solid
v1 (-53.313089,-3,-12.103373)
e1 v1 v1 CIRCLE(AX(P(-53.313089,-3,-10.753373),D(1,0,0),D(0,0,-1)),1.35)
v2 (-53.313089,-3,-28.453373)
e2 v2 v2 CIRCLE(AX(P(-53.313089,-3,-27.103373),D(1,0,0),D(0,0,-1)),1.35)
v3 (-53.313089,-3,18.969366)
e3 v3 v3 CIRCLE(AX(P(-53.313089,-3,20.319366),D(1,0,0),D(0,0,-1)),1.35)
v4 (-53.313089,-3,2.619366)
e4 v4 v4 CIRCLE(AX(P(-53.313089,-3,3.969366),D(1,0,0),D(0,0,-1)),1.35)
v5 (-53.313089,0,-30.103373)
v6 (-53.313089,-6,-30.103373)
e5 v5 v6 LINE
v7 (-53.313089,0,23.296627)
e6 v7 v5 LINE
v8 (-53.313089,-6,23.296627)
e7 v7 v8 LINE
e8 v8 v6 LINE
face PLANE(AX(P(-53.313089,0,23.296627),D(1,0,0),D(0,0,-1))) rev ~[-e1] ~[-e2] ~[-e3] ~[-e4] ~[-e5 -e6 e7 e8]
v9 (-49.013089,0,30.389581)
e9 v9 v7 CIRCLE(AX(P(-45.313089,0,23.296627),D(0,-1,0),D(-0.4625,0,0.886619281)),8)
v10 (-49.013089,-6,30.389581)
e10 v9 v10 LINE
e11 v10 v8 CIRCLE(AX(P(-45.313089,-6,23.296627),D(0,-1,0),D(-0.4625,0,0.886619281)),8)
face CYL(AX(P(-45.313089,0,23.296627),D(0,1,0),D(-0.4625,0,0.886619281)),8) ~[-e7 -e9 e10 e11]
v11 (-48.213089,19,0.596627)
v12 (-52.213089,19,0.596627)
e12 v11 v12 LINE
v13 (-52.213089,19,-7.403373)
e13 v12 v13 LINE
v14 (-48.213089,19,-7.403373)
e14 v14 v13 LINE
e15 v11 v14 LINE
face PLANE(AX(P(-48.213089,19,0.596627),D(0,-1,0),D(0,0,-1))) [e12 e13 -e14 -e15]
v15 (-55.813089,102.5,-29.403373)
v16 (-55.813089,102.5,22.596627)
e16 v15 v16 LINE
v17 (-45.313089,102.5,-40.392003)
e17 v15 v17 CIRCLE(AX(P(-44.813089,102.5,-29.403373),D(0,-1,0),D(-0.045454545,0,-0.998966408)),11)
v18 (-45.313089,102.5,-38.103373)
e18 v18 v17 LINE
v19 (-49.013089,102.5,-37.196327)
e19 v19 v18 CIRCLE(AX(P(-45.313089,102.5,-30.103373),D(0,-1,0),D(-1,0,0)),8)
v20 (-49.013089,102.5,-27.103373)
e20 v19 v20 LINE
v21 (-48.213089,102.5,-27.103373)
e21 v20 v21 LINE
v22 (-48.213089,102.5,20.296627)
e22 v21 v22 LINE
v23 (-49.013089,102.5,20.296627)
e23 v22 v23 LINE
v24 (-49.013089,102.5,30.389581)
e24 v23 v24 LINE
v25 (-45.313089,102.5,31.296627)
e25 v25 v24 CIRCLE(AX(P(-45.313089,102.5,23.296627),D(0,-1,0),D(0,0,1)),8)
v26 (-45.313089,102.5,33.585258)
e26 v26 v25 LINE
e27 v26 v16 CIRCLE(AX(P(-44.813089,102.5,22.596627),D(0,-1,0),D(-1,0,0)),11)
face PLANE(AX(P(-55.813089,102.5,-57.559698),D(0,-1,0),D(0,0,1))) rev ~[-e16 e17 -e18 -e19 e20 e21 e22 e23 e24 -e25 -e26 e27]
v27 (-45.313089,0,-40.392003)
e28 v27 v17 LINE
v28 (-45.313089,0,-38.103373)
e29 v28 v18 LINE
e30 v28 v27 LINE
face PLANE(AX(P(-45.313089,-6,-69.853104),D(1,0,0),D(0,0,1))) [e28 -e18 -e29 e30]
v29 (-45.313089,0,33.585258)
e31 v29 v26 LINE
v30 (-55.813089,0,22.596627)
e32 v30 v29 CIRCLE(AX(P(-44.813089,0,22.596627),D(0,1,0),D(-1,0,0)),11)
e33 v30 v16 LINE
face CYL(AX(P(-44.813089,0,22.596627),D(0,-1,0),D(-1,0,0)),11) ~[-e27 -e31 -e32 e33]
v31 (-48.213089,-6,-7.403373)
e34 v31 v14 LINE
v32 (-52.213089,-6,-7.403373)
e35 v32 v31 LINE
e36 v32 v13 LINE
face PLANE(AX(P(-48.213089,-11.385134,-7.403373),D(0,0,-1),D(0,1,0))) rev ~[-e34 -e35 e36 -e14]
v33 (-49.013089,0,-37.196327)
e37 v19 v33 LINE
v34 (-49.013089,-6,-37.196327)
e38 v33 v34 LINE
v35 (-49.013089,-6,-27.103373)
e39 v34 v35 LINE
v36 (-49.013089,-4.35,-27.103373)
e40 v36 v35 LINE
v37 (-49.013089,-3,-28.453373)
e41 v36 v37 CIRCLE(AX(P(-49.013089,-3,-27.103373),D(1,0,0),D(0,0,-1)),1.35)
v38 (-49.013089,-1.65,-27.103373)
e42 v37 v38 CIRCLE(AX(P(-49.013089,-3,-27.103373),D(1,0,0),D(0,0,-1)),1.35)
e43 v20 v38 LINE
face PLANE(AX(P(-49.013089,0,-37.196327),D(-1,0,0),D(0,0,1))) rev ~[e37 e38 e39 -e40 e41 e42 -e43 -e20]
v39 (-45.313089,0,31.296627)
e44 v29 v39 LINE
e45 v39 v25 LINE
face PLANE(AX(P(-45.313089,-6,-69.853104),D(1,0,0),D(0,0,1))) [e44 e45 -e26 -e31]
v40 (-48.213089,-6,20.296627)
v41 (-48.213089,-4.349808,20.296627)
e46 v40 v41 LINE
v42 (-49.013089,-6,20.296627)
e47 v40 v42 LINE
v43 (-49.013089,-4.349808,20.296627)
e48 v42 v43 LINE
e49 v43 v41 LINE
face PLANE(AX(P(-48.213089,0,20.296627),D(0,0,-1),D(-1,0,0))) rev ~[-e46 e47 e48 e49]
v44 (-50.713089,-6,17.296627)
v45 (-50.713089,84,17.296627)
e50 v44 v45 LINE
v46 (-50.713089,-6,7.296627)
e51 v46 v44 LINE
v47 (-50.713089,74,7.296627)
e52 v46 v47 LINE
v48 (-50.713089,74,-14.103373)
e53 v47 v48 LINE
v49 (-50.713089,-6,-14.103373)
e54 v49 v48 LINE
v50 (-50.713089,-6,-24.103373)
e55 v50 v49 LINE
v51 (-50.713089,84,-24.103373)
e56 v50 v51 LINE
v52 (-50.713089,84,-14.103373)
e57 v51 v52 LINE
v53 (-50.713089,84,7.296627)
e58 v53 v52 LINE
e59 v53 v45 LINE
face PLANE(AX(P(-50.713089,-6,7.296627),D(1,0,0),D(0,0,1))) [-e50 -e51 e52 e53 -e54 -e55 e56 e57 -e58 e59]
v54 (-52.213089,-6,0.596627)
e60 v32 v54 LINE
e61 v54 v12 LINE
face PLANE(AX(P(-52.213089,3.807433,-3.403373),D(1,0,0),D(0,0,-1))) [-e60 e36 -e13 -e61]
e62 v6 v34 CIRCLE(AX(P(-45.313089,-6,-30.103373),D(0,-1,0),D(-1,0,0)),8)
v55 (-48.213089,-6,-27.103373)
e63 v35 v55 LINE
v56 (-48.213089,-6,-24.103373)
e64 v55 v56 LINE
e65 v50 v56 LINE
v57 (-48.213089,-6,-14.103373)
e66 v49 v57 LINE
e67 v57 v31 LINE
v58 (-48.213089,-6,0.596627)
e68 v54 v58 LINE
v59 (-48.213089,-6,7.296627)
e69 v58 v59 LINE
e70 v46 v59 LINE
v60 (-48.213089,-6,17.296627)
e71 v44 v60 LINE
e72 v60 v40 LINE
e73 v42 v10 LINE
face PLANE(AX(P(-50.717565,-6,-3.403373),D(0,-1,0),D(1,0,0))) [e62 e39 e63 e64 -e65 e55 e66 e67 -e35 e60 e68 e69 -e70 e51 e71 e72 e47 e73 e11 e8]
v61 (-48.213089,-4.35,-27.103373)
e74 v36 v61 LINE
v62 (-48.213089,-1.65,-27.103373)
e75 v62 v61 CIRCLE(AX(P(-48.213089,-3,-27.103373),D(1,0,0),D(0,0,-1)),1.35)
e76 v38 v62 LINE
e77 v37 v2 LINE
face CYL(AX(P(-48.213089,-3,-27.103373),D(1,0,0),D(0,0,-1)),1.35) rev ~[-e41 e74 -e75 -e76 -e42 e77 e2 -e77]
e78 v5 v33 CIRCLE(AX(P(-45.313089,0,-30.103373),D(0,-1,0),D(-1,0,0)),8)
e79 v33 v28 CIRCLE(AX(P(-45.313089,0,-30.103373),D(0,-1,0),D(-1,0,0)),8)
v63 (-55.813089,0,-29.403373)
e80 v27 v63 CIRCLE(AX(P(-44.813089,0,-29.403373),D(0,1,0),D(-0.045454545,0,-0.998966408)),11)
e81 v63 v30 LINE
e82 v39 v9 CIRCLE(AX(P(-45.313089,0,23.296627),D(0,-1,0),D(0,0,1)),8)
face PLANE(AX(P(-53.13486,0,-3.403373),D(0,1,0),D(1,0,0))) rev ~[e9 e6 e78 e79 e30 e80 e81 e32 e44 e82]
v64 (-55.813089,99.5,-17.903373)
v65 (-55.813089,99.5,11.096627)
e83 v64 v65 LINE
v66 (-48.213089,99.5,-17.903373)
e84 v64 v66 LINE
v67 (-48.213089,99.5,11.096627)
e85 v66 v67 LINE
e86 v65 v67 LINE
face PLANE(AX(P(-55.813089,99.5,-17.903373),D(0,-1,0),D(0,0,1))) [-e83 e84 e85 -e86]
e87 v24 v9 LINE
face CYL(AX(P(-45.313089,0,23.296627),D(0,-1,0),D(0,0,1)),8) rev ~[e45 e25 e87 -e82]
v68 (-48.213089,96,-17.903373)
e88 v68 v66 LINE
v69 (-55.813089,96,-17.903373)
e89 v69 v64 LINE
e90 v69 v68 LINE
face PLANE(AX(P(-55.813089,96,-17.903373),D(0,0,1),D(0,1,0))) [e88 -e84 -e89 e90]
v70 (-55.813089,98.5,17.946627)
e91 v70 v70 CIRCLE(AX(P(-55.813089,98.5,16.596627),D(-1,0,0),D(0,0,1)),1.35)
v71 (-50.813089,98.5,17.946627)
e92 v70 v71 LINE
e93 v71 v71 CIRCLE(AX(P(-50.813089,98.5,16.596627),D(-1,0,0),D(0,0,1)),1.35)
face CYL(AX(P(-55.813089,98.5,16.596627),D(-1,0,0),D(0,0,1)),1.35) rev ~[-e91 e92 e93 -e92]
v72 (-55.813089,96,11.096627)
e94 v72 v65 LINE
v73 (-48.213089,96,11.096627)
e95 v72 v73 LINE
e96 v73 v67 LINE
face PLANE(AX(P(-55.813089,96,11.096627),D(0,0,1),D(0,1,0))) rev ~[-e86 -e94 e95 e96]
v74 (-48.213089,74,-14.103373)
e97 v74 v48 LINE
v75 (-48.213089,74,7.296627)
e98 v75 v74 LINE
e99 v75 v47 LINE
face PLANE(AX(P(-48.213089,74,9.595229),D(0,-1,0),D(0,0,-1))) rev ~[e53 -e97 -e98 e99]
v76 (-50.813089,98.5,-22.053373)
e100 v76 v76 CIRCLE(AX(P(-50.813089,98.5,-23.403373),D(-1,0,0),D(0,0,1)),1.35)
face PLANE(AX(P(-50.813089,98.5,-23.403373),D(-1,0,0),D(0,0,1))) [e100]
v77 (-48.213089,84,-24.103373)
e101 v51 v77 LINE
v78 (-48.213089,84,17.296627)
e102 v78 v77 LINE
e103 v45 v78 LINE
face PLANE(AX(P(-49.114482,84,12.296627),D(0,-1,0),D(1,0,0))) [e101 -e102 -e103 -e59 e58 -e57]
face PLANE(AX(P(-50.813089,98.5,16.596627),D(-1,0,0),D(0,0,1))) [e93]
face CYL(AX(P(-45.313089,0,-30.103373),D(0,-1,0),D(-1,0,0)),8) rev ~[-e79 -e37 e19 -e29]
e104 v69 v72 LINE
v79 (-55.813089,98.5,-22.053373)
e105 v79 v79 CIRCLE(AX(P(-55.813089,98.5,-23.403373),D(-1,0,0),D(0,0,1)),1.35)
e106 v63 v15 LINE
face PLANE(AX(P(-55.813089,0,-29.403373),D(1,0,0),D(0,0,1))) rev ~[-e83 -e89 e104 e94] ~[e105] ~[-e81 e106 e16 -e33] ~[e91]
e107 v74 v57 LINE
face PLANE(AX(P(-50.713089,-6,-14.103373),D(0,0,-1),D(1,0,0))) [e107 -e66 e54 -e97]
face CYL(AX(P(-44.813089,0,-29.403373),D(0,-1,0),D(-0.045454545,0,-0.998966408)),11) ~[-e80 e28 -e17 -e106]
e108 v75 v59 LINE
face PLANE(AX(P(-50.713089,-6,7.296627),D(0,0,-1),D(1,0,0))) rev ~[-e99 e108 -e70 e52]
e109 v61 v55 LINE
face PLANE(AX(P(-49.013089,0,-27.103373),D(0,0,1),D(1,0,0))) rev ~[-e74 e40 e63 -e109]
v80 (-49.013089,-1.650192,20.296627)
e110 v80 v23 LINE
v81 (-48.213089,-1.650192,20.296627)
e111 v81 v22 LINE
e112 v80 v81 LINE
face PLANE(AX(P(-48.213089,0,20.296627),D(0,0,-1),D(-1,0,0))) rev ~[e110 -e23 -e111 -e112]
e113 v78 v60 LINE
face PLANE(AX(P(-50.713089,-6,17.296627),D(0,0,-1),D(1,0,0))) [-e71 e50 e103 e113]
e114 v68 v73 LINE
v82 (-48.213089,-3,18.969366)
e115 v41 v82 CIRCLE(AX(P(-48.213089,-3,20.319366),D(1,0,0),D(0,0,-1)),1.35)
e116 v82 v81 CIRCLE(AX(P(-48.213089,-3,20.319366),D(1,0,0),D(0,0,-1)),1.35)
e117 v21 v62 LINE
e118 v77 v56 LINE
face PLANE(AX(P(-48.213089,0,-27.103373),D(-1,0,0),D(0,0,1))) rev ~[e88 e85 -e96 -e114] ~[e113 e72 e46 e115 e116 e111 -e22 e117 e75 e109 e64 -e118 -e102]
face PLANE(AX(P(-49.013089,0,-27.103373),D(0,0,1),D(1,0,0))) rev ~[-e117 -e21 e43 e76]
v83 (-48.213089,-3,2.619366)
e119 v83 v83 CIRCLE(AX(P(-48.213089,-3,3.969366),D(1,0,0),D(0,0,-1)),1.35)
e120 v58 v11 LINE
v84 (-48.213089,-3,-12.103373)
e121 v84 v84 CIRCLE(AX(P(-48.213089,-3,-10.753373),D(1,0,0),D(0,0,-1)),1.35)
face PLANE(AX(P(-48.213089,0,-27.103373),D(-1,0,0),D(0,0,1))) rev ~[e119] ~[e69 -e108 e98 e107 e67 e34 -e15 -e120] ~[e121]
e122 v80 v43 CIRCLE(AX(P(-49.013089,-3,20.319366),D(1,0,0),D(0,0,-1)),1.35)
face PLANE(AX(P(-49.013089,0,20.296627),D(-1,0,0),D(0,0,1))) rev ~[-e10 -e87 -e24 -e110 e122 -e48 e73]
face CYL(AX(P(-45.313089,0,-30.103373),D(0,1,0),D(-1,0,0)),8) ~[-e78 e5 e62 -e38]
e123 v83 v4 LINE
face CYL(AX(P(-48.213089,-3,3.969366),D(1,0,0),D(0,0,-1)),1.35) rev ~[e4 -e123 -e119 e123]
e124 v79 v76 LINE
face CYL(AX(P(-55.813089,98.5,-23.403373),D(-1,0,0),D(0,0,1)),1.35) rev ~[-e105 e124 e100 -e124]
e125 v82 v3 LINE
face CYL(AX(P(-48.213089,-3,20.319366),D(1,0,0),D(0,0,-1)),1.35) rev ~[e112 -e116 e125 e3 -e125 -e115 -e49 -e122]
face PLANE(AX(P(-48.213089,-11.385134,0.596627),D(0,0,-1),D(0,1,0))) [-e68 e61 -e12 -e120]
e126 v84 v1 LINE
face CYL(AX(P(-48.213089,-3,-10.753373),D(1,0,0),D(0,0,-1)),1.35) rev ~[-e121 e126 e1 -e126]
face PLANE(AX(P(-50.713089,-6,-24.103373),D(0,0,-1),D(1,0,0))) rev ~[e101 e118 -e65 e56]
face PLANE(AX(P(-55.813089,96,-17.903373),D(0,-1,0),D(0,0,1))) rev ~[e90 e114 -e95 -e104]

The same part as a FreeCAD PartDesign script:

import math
import FreeCAD as App
import Part
import Sketcher
from FreeCAD import Vector
Q = App.Units.Quantity

doc = App.newDocument("Part")
body = doc.addObject("PartDesign::Body", "Body")

sketch1 = body.newObject("Sketcher::SketchObject", "Sketch")
sketch1.AttachmentSupport = (doc.getObject("XZ_Plane"), [""])
sketch1.MapMode = "FlatFace"
sketch1.addGeometry(Part.LineSegment(Vector(-55.813, -29.403, 0), Vector(-55.813, 22.597, 0)), False)
sketch1.addGeometry(Part.ArcOfCircle(Part.Circle(Vector(-44.813, 22.597, 0), Vector(0, 0, 1), 11), math.radians(93), math.radians(180)), False)
sketch1.addGeometry(Part.ArcOfCircle(Part.Circle(Vector(-44.813, 22.597, 0), Vector(0, 0, 1), 11), math.radians(90), math.radians(92.61)), False)
sketch1.addGeometry(Part.LineSegment(Vector(-44.813, 33.597, 0), Vector(7.187, 33.597, 0)), False)
sketch1.addGeometry(Part.ArcOfCircle(Part.Circle(Vector(7.187, 22.597, 0), Vector(0, 0, 1), 11), math.radians(0), math.radians(90)), False)
sketch1.addGeometry(Part.LineSegment(Vector(18.187, 22.597, 0), Vector(18.187, -29.403, 0)), False)
sketch1.addGeometry(Part.ArcOfCircle(Part.Circle(Vector(7.187, -29.403, 0), Vector(0, 0, 1), 11), math.radians(-90), math.radians(0)), False)
sketch1.addGeometry(Part.LineSegment(Vector(7.187, -40.403, 0), Vector(-45.313, -40.403, 0)), False)
sketch1.addGeometry(Part.LineSegment(Vector(-45.313, -40.403, 0), Vector(-45.313, -40.392, 0)), False)
sketch1.addGeometry(Part.ArcOfCircle(Part.Circle(Vector(-44.813, -29.403, 0), Vector(0, 0, 1), 11), math.radians(180), math.radians(267)), False)
sketch1.addGeometry(Part.ArcOfCircle(Part.Circle(Vector(-45.313, 23.297, 0), Vector(0, 0, 1), 8), math.radians(90), math.radians(180)), False)
sketch1.addGeometry(Part.LineSegment(Vector(-53.313, 23.297, 0), Vector(-53.313, -30.103, 0)), False)
sketch1.addGeometry(Part.ArcOfCircle(Part.Circle(Vector(-45.313, -30.103, 0), Vector(0, 0, 1), 8), math.radians(180), math.radians(270)), False)
sketch1.addGeometry(Part.LineSegment(Vector(-45.313, -38.103, 0), Vector(7.687, -38.103, 0)), False)
sketch1.addGeometry(Part.ArcOfCircle(Part.Circle(Vector(7.687, -30.103, 0), Vector(0, 0, 1), 8), math.radians(-90), math.radians(0)), False)
sketch1.addGeometry(Part.LineSegment(Vector(15.687, -30.103, 0), Vector(15.687, 23.297, 0)), False)
sketch1.addGeometry(Part.ArcOfCircle(Part.Circle(Vector(7.687, 23.297, 0), Vector(0, 0, 1), 8), math.radians(0), math.radians(90)), False)
sketch1.addGeometry(Part.LineSegment(Vector(7.687, 31.297, 0), Vector(-45.313, 31.297, 0)), False)
sketch1.addConstraint(Sketcher.Constraint("Tangent", 0, 2, 1, 2))
sketch1.addConstraint(Sketcher.Constraint("Tangent", 1, 1, 2, 2))
sketch1.addConstraint(Sketcher.Constraint("Tangent", 2, 1, 3, 1))
sketch1.addConstraint(Sketcher.Constraint("Tangent", 3, 2, 4, 2))
sketch1.addConstraint(Sketcher.Constraint("Tangent", 4, 1, 5, 1))
sketch1.addConstraint(Sketcher.Constraint("Tangent", 5, 2, 6, 2))
sketch1.addConstraint(Sketcher.Constraint("Tangent", 6, 1, 7, 1))
sketch1.addConstraint(Sketcher.Constraint("Coincident", 7, 2, 8, 1))
sketch1.addConstraint(Sketcher.Constraint("Coincident", 8, 2, 9, 2))
sketch1.addConstraint(Sketcher.Constraint("Tangent", 9, 1, 0, 1))
sketch1.addConstraint(Sketcher.Constraint("Tangent", 10, 2, 11, 1))
sketch1.addConstraint(Sketcher.Constraint("Tangent", 11, 2, 12, 1))
sketch1.addConstraint(Sketcher.Constraint("Tangent", 12, 2, 13, 1))
sketch1.addConstraint(Sketcher.Constraint("Tangent", 13, 2, 14, 1))
sketch1.addConstraint(Sketcher.Constraint("Tangent", 14, 2, 15, 1))
sketch1.addConstraint(Sketcher.Constraint("Tangent", 15, 2, 16, 1))
sketch1.addConstraint(Sketcher.Constraint("Tangent", 16, 2, 17, 1))
sketch1.addConstraint(Sketcher.Constraint("Tangent", 17, 2, 10, 1))
sketch1.addConstraint(Sketcher.Constraint("Vertical", 0))
sketch1.addConstraint(Sketcher.Constraint("Horizontal", 3))
sketch1.addConstraint(Sketcher.Constraint("Vertical", 5))
sketch1.addConstraint(Sketcher.Constraint("Horizontal", 7))
sketch1.addConstraint(Sketcher.Constraint("Vertical", 8))
sketch1.addConstraint(Sketcher.Constraint("Vertical", 11))
sketch1.addConstraint(Sketcher.Constraint("Horizontal", 13))
sketch1.addConstraint(Sketcher.Constraint("Vertical", 15))
sketch1.addConstraint(Sketcher.Constraint("Horizontal", 17))
sketch1.addConstraint(Sketcher.Constraint("Equal", 1, 4))
sketch1.addConstraint(Sketcher.Constraint("Equal", 4, 6))
sketch1.addConstraint(Sketcher.Constraint("Equal", 6, 9))
sketch1.addConstraint(Sketcher.Constraint("Equal", 10, 12))
sketch1.addConstraint(Sketcher.Constraint("Equal", 12, 14))
sketch1.addConstraint(Sketcher.Constraint("Equal", 14, 16))
sketch1.addConstraint(Sketcher.Constraint("Horizontal", 6, 3, 9, 3))
sketch1.addConstraint(Sketcher.Constraint("Vertical", 2, 3, 9, 3))
sketch1.addConstraint(Sketcher.Constraint("Vertical", 12, 3, 1, 1))
sketch1.addConstraint(Sketcher.Constraint("Vertical", 1, 1, 7, 2))
sketch1.addConstraint(Sketcher.Constraint("Equal", 3, 0))
sketch1.addConstraint(Sketcher.Constraint("Radius", 1, Q("11 mm")))
sketch1.addConstraint(Sketcher.Constraint("Radius", 10, Q("8 mm")))
sketch1.addConstraint(Sketcher.Constraint("DistanceX", 3, 1, 3, 2, Q("52 mm")))
sketch1.addConstraint(Sketcher.Constraint("DistanceX", 13, 1, 13, 2, Q("53 mm")))
sketch1.addConstraint(Sketcher.Constraint("DistanceX", 7, 2, 7, 1, Q("52.5 mm")))
sketch1.addConstraint(Sketcher.Constraint("DistanceY", 11, 2, 11, 1, Q("53.4 mm")))
sketch1.addConstraint(Sketcher.Constraint("DistanceY", 1, 3, 10, 3, Q("0.7 mm")))
sketch1.addConstraint(Sketcher.Constraint("DistanceX", 1, 3, -1, 1, Q("44.813089 mm")))
sketch1.addConstraint(Sketcher.Constraint("DistanceY", -1, 1, 1, 3, Q("22.596627 mm")))
pad1 = body.newObject("PartDesign::Pad", "Pad")
pad1.Profile = sketch1
pad1.Length = 120
pad1.Reversed = True

sketch2 = body.newObject("Sketcher::SketchObject", "Sketch001")
sketch2.AttachmentSupport = (doc.getObject("XZ_Plane"), [""])
sketch2.MapMode = "FlatFace"
sketch2.addGeometry(Part.LineSegment(Vector(-49, -37.6, 0), Vector(-49, 32, 0)), False)
sketch2.addGeometry(Part.LineSegment(Vector(-49, 32, 0), Vector(-52.1, 30.2, 0)), False)
sketch2.addGeometry(Part.LineSegment(Vector(-52.1, 30.2, 0), Vector(-53.7, 27.8, 0)), False)
sketch2.addGeometry(Part.LineSegment(Vector(-53.7, 27.8, 0), Vector(-55.1, 25.5, 0)), False)
sketch2.addGeometry(Part.LineSegment(Vector(-55.1, 25.5, 0), Vector(-55.1, -30, 0)), False)
sketch2.addGeometry(Part.LineSegment(Vector(-55.1, -30, 0), Vector(-53.3, -34.9, 0)), False)
sketch2.addGeometry(Part.LineSegment(Vector(-53.3, -34.9, 0), Vector(-49, -37.6, 0)), False)
sketch2.addGeometry(Part.LineSegment(Vector(11.4, 32, 0), Vector(11.4, -38.5, 0)), False)
sketch2.addGeometry(Part.LineSegment(Vector(11.4, -38.5, 0), Vector(13.3, -37.8, 0)), False)
sketch2.addGeometry(Part.LineSegment(Vector(13.3, -37.8, 0), Vector(16.7, -32.3, 0)), False)
sketch2.addGeometry(Part.LineSegment(Vector(16.7, -32.3, 0), Vector(16.6, -31.2, 0)), False)
sketch2.addGeometry(Part.LineSegment(Vector(16.6, -31.2, 0), Vector(16.6, 24.8, 0)), False)
sketch2.addGeometry(Part.LineSegment(Vector(16.6, 24.8, 0), Vector(15, 29, 0)), False)
sketch2.addGeometry(Part.LineSegment(Vector(15, 29, 0), Vector(11.4, 32, 0)), False)
sketch2.addConstraint(Sketcher.Constraint("Coincident", 0, 2, 1, 1))
sketch2.addConstraint(Sketcher.Constraint("Coincident", 1, 2, 2, 1))
sketch2.addConstraint(Sketcher.Constraint("Coincident", 2, 2, 3, 1))
sketch2.addConstraint(Sketcher.Constraint("Coincident", 3, 2, 4, 1))
sketch2.addConstraint(Sketcher.Constraint("Coincident", 4, 2, 5, 1))
sketch2.addConstraint(Sketcher.Constraint("Coincident", 5, 2, 6, 1))
sketch2.addConstraint(Sketcher.Constraint("Coincident", 6, 2, 0, 1))
sketch2.addConstraint(Sketcher.Constraint("Coincident", 7, 2, 8, 1))
sketch2.addConstraint(Sketcher.Constraint("Coincident", 8, 2, 9, 1))
sketch2.addConstraint(Sketcher.Constraint("Coincident", 9, 2, 10, 1))
sketch2.addConstraint(Sketcher.Constraint("Coincident", 10, 2, 11, 1))
sketch2.addConstraint(Sketcher.Constraint("Coincident", 11, 2, 12, 1))
sketch2.addConstraint(Sketcher.Constraint("Coincident", 12, 2, 13, 1))
sketch2.addConstraint(Sketcher.Constraint("Coincident", 13, 2, 7, 1))
sketch2.addConstraint(Sketcher.Constraint("Vertical", 0))
sketch2.addConstraint(Sketcher.Constraint("Vertical", 4))
sketch2.addConstraint(Sketcher.Constraint("Vertical", 7))
sketch2.addConstraint(Sketcher.Constraint("Vertical", 11))
sketch2.addConstraint(Sketcher.Constraint("Perpendicular", 3, 6))
sketch2.addConstraint(Sketcher.Constraint("Perpendicular", 5, 8))
sketch2.addConstraint(Sketcher.Constraint("Perpendicular", 6, 9))
sketch2.addConstraint(Sketcher.Constraint("Horizontal", 0, 2, 13, 2))
sketch2.addConstraint(Sketcher.Constraint("DistanceX", 6, 2, 7, 2, Q("60.4 mm")))
sketch2.addConstraint(Sketcher.Constraint("Distance", 10, Q("1.118801 mm")))
sketch2.addConstraint(Sketcher.Constraint("DistanceY", 0, 1, 0, 2, Q("69.595951 mm")))
sketch2.addConstraint(Sketcher.Constraint("DistanceY", 4, 2, 0, 2, Q("61.957301 mm")))
sketch2.addConstraint(Sketcher.Constraint("DistanceY", 5, 2, 4, 2, Q("4.929302 mm")))
sketch2.addConstraint(Sketcher.Constraint("DistanceY", 5, 2, 2, 2, Q("62.693198 mm")))
sketch2.addConstraint(Sketcher.Constraint("DistanceY", 5, 2, 10, 2, Q("3.7429 mm")))
sketch2.addConstraint(Sketcher.Constraint("DistanceY", 9, 2, 12, 2, Q("61.2742 mm")))
sketch2.addConstraint(Sketcher.Constraint("Distance", 3, Q("2.746111 mm")))
sketch2.addConstraint(Sketcher.Constraint("DistanceY", 4, 2, 4, 1, Q("55.436944 mm")))
sketch2.addConstraint(Sketcher.Constraint("DistanceY", 7, 2, 7, 1, Q("70.460526 mm")))
sketch2.addConstraint(Sketcher.Constraint("DistanceY", 11, 1, 11, 2, Q("55.960744 mm")))
sketch2.addConstraint(Sketcher.Constraint("DistanceX", 0, 2, -1, 1, Q("49.013089 mm")))
sketch2.addConstraint(Sketcher.Constraint("DistanceY", -1, 1, 2, 2, Q("27.779331 mm")))
sketch2.addConstraint(Sketcher.Constraint("DistanceY", 9, 2, -1, 1, Q("32.27697 mm")))
sketch2.addConstraint(Sketcher.Constraint("DistanceY", 1, 2, 0, 2, Q("1.74606 mm")))
sketch2.addConstraint(Sketcher.Constraint("DistanceX", 2, 2, 1, 2, Q("1.579649 mm")))
sketch2.addConstraint(Sketcher.Constraint("DistanceX", 4, 2, 5, 2, Q("1.774549 mm")))
sketch2.addConstraint(Sketcher.Constraint("DistanceY", 8, 2, 4, 2, Q("7.825408 mm")))
sketch2.addConstraint(Sketcher.Constraint("DistanceX", 12, 2, 11, 2, Q("1.529818 mm")))
pad2 = body.newObject("PartDesign::Pad", "Pad001")
pad2.Profile = sketch2
pad2.Length = 120
pad2.Reversed = True

sketch3 = body.newObject("Sketcher::SketchObject", "Sketch002")
sketch3.AttachmentSupport = (doc.getObject("XZ_Plane"), [""])
sketch3.MapMode = "FlatFace"
sketch3.addGeometry(Part.LineSegment(Vector(10.6, 20.3, 0), Vector(10.6, -27.1, 0)), False)
sketch3.addGeometry(Part.LineSegment(Vector(10.6, -27.1, 0), Vector(11.4, -27.1, 0)), False)
sketch3.addGeometry(Part.LineSegment(Vector(11.4, -27.1, 0), Vector(11.4, 20.3, 0)), False)
sketch3.addGeometry(Part.LineSegment(Vector(11.4, 20.3, 0), Vector(10.6, 20.3, 0)), False)
sketch3.addGeometry(Part.LineSegment(Vector(-49, 20.3, 0), Vector(-49, -27.1, 0)), False)
sketch3.addGeometry(Part.LineSegment(Vector(-49, -27.1, 0), Vector(-48.2, -27.1, 0)), False)
sketch3.addGeometry(Part.LineSegment(Vector(-48.2, -27.1, 0), Vector(-48.2, 20.3, 0)), False)
sketch3.addGeometry(Part.LineSegment(Vector(-48.2, 20.3, 0), Vector(-49, 20.3, 0)), False)
sketch3.addConstraint(Sketcher.Constraint("Coincident", 0, 2, 1, 1))
sketch3.addConstraint(Sketcher.Constraint("Coincident", 1, 2, 2, 1))
sketch3.addConstraint(Sketcher.Constraint("Coincident", 2, 2, 3, 1))
sketch3.addConstraint(Sketcher.Constraint("Coincident", 3, 2, 0, 1))
sketch3.addConstraint(Sketcher.Constraint("Coincident", 4, 2, 5, 1))
sketch3.addConstraint(Sketcher.Constraint("Coincident", 5, 2, 6, 1))
sketch3.addConstraint(Sketcher.Constraint("Coincident", 6, 2, 7, 1))
sketch3.addConstraint(Sketcher.Constraint("Coincident", 7, 2, 4, 1))
sketch3.addConstraint(Sketcher.Constraint("Vertical", 0))
sketch3.addConstraint(Sketcher.Constraint("Horizontal", 1))
sketch3.addConstraint(Sketcher.Constraint("Vertical", 2))
sketch3.addConstraint(Sketcher.Constraint("Horizontal", 3))
sketch3.addConstraint(Sketcher.Constraint("Vertical", 4))
sketch3.addConstraint(Sketcher.Constraint("Horizontal", 5))
sketch3.addConstraint(Sketcher.Constraint("Vertical", 6))
sketch3.addConstraint(Sketcher.Constraint("Horizontal", 7))
sketch3.addConstraint(Sketcher.Constraint("Horizontal", 1, 2, 4, 2))
sketch3.addConstraint(Sketcher.Constraint("Horizontal", 3, 2, 6, 2))
sketch3.addConstraint(Sketcher.Constraint("Equal", 3, 5))
sketch3.addConstraint(Sketcher.Constraint("DistanceX", 1, 1, 1, 2, Q("0.8 mm")))
sketch3.addConstraint(Sketcher.Constraint("DistanceY", 0, 2, 0, 1, Q("47.4 mm")))
sketch3.addConstraint(Sketcher.Constraint("DistanceX", 4, 2, 0, 2, Q("59.6 mm")))
sketch3.addConstraint(Sketcher.Constraint("DistanceX", -1, 1, 0, 2, Q("10.586911 mm")))
sketch3.addConstraint(Sketcher.Constraint("DistanceY", 0, 2, -1, 1, Q("27.103373 mm")))
pad3 = body.newObject("PartDesign::Pad", "Pad002")
pad3.Profile = sketch3
pad3.Length = 120
pad3.Reversed = True

sketch4 = body.newObject("Sketcher::SketchObject", "Sketch003")
sketch4.AttachmentSupport = (doc.getObject("XZ_Plane"), [""])
sketch4.MapMode = "FlatFace"
sketch4.addGeometry(Part.ArcOfCircle(Part.Circle(Vector(-45.3, 23.3, 0), Vector(0, 0, 1), 8), math.radians(118), math.radians(180)), False)
sketch4.addGeometry(Part.LineSegment(Vector(-53.3, 23.3, 0), Vector(-53.3, -30.1, 0)), False)
sketch4.addGeometry(Part.ArcOfCircle(Part.Circle(Vector(-45.3, -30.1, 0), Vector(0, 0, 1), 8), math.radians(180), math.radians(242)), False)
sketch4.addGeometry(Part.LineSegment(Vector(-49, -37.2, 0), Vector(-49, -27.1, 0)), False)
sketch4.addGeometry(Part.LineSegment(Vector(-49, -27.1, 0), Vector(-48.2, -27.1, 0)), False)
sketch4.addGeometry(Part.LineSegment(Vector(-48.2, -27.1, 0), Vector(-48.2, 20.3, 0)), False)
sketch4.addGeometry(Part.LineSegment(Vector(-48.2, 20.3, 0), Vector(-49, 20.3, 0)), False)
sketch4.addGeometry(Part.LineSegment(Vector(-49, 20.3, 0), Vector(-49, 30.4, 0)), False)
sketch4.addGeometry(Part.ArcOfCircle(Part.Circle(Vector(7.7, -30.1, 0), Vector(0, 0, 1), 8), math.radians(-62), math.radians(0)), False)
sketch4.addGeometry(Part.LineSegment(Vector(15.7, -30.1, 0), Vector(15.7, 23.3, 0)), False)
sketch4.addGeometry(Part.ArcOfCircle(Part.Circle(Vector(7.7, 23.3, 0), Vector(0, 0, 1), 8), math.radians(0), math.radians(62)), False)
sketch4.addGeometry(Part.LineSegment(Vector(11.4, 30.4, 0), Vector(11.4, 20.3, 0)), False)
sketch4.addGeometry(Part.LineSegment(Vector(11.4, 20.3, 0), Vector(10.6, 20.3, 0)), False)
sketch4.addGeometry(Part.LineSegment(Vector(10.6, 20.3, 0), Vector(10.6, -27.1, 0)), False)
sketch4.addGeometry(Part.LineSegment(Vector(10.6, -27.1, 0), Vector(11.4, -27.1, 0)), False)
sketch4.addGeometry(Part.LineSegment(Vector(11.4, -27.1, 0), Vector(11.4, -37.2, 0)), False)
sketch4.addConstraint(Sketcher.Constraint("Tangent", 0, 2, 1, 1))
sketch4.addConstraint(Sketcher.Constraint("Tangent", 1, 2, 2, 1))
sketch4.addConstraint(Sketcher.Constraint("Coincident", 2, 2, 3, 1))
sketch4.addConstraint(Sketcher.Constraint("Coincident", 3, 2, 4, 1))
sketch4.addConstraint(Sketcher.Constraint("Coincident", 4, 2, 5, 1))
sketch4.addConstraint(Sketcher.Constraint("Coincident", 5, 2, 6, 1))
sketch4.addConstraint(Sketcher.Constraint("Coincident", 6, 2, 7, 1))
sketch4.addConstraint(Sketcher.Constraint("Coincident", 7, 2, 0, 1))
sketch4.addConstraint(Sketcher.Constraint("Tangent", 8, 2, 9, 1))
sketch4.addConstraint(Sketcher.Constraint("Tangent", 9, 2, 10, 1))
sketch4.addConstraint(Sketcher.Constraint("Coincident", 10, 2, 11, 1))
sketch4.addConstraint(Sketcher.Constraint("Coincident", 11, 2, 12, 1))
sketch4.addConstraint(Sketcher.Constraint("Coincident", 12, 2, 13, 1))
sketch4.addConstraint(Sketcher.Constraint("Coincident", 13, 2, 14, 1))
sketch4.addConstraint(Sketcher.Constraint("Coincident", 14, 2, 15, 1))
sketch4.addConstraint(Sketcher.Constraint("Coincident", 15, 2, 8, 1))
sketch4.addConstraint(Sketcher.Constraint("Vertical", 1))
sketch4.addConstraint(Sketcher.Constraint("Vertical", 3))
sketch4.addConstraint(Sketcher.Constraint("Horizontal", 4))
sketch4.addConstraint(Sketcher.Constraint("Vertical", 5))
sketch4.addConstraint(Sketcher.Constraint("Horizontal", 6))
sketch4.addConstraint(Sketcher.Constraint("Vertical", 7))
sketch4.addConstraint(Sketcher.Constraint("Vertical", 9))
sketch4.addConstraint(Sketcher.Constraint("Vertical", 11))
sketch4.addConstraint(Sketcher.Constraint("Horizontal", 12))
sketch4.addConstraint(Sketcher.Constraint("Vertical", 13))
sketch4.addConstraint(Sketcher.Constraint("Horizontal", 14))
sketch4.addConstraint(Sketcher.Constraint("Vertical", 15))
sketch4.addConstraint(Sketcher.Constraint("Equal", 0, 2))
sketch4.addConstraint(Sketcher.Constraint("Equal", 2, 8))
sketch4.addConstraint(Sketcher.Constraint("Equal", 8, 10))
sketch4.addConstraint(Sketcher.Constraint("Horizontal", 2, 3, 8, 3))
sketch4.addConstraint(Sketcher.Constraint("Horizontal", 0, 3, 10, 3))
sketch4.addConstraint(Sketcher.Constraint("Horizontal", 7, 2, 10, 2))
sketch4.addConstraint(Sketcher.Constraint("Horizontal", 6, 2, 11, 2))
sketch4.addConstraint(Sketcher.Constraint("Horizontal", 4, 2, 13, 2))
sketch4.addConstraint(Sketcher.Constraint("Horizontal", 2, 2, 15, 2))
sketch4.addConstraint(Sketcher.Constraint("Vertical", 3, 2, 6, 2))
sketch4.addConstraint(Sketcher.Constraint("Equal", 6, 12))
sketch4.addConstraint(Sketcher.Constraint("Equal", 3, 7))
sketch4.addConstraint(Sketcher.Constraint("Radius", 0, Q("8 mm")))
sketch4.addConstraint(Sketcher.Constraint("DistanceX", 4, 1, 4, 2, Q("0.8 mm")))
sketch4.addConstraint(Sketcher.Constraint("DistanceY", 1, 2, 1, 1, Q("53.4 mm")))
sketch4.addConstraint(Sketcher.Constraint("DistanceY", 5, 1, 5, 2, Q("47.4 mm")))
sketch4.addConstraint(Sketcher.Constraint("DistanceX", 2, 3, 8, 3, Q("53 mm")))
sketch4.addConstraint(Sketcher.Constraint("DistanceX", 2, 2, 2, 3, Q("3.7 mm")))
sketch4.addConstraint(Sketcher.Constraint("DistanceX", 0, 3, -1, 1, Q("45.313089 mm")))
sketch4.addConstraint(Sketcher.Constraint("DistanceY", -1, 1, 7, 2, Q("30.389581 mm")))
pad4 = body.newObject("PartDesign::Pad", "Pad003")
pad4.Profile = sketch4
pad4.Length = 6

sketch5 = body.newObject("Sketcher::SketchObject", "Sketch004")
sketch5.AttachmentSupport = (doc.getObject("XZ_Plane"), [""])
sketch5.MapMode = "FlatFace"
sketch5.AttachmentOffset = App.Placement(Vector(0, 0, 6), App.Rotation())
sketch5.addGeometry(Part.LineSegment(Vector(-50.7, 17.3, 0), Vector(-50.7, 7.3, 0)), False)
sketch5.addGeometry(Part.LineSegment(Vector(-50.7, 7.3, 0), Vector(-47.5, 7.3, 0)), False)
sketch5.addGeometry(Part.LineSegment(Vector(-47.5, 7.3, 0), Vector(-47.5, 17.3, 0)), False)
sketch5.addGeometry(Part.LineSegment(Vector(-47.5, 17.3, 0), Vector(-50.7, 17.3, 0)), False)
sketch5.addGeometry(Part.LineSegment(Vector(-50.7, -14.1, 0), Vector(-50.7, -24.1, 0)), False)
sketch5.addGeometry(Part.LineSegment(Vector(-50.7, -24.1, 0), Vector(-48.2, -24.1, 0)), False)
sketch5.addGeometry(Part.LineSegment(Vector(-48.2, -24.1, 0), Vector(-48.2, -14.1, 0)), False)
sketch5.addGeometry(Part.LineSegment(Vector(-48.2, -14.1, 0), Vector(-50.7, -14.1, 0)), False)
sketch5.addGeometry(Part.LineSegment(Vector(10.5, -14.1, 0), Vector(10.5, -24.1, 0)), False)
sketch5.addGeometry(Part.LineSegment(Vector(10.5, -24.1, 0), Vector(13.1, -24.1, 0)), False)
sketch5.addGeometry(Part.LineSegment(Vector(13.1, -24.1, 0), Vector(13.1, -14.1, 0)), False)
sketch5.addGeometry(Part.LineSegment(Vector(13.1, -14.1, 0), Vector(10.5, -14.1, 0)), False)
sketch5.addGeometry(Part.LineSegment(Vector(9.9, 17.3, 0), Vector(9.9, 7.3, 0)), False)
sketch5.addGeometry(Part.LineSegment(Vector(9.9, 7.3, 0), Vector(13.1, 7.3, 0)), False)
sketch5.addGeometry(Part.LineSegment(Vector(13.1, 7.3, 0), Vector(13.1, 17.3, 0)), False)
sketch5.addGeometry(Part.LineSegment(Vector(13.1, 17.3, 0), Vector(9.9, 17.3, 0)), False)
sketch5.addConstraint(Sketcher.Constraint("Coincident", 0, 2, 1, 1))
sketch5.addConstraint(Sketcher.Constraint("Coincident", 1, 2, 2, 1))
sketch5.addConstraint(Sketcher.Constraint("Coincident", 2, 2, 3, 1))
sketch5.addConstraint(Sketcher.Constraint("Coincident", 3, 2, 0, 1))
sketch5.addConstraint(Sketcher.Constraint("Coincident", 4, 2, 5, 1))
sketch5.addConstraint(Sketcher.Constraint("Coincident", 5, 2, 6, 1))
sketch5.addConstraint(Sketcher.Constraint("Coincident", 6, 2, 7, 1))
sketch5.addConstraint(Sketcher.Constraint("Coincident", 7, 2, 4, 1))
sketch5.addConstraint(Sketcher.Constraint("Coincident", 8, 2, 9, 1))
sketch5.addConstraint(Sketcher.Constraint("Coincident", 9, 2, 10, 1))
sketch5.addConstraint(Sketcher.Constraint("Coincident", 10, 2, 11, 1))
sketch5.addConstraint(Sketcher.Constraint("Coincident", 11, 2, 8, 1))
sketch5.addConstraint(Sketcher.Constraint("Coincident", 12, 2, 13, 1))
sketch5.addConstraint(Sketcher.Constraint("Coincident", 13, 2, 14, 1))
sketch5.addConstraint(Sketcher.Constraint("Coincident", 14, 2, 15, 1))
sketch5.addConstraint(Sketcher.Constraint("Coincident", 15, 2, 12, 1))
sketch5.addConstraint(Sketcher.Constraint("Vertical", 0))
sketch5.addConstraint(Sketcher.Constraint("Horizontal", 1))
sketch5.addConstraint(Sketcher.Constraint("Vertical", 2))
sketch5.addConstraint(Sketcher.Constraint("Horizontal", 3))
sketch5.addConstraint(Sketcher.Constraint("Vertical", 4))
sketch5.addConstraint(Sketcher.Constraint("Horizontal", 5))
sketch5.addConstraint(Sketcher.Constraint("Vertical", 6))
sketch5.addConstraint(Sketcher.Constraint("Horizontal", 7))
sketch5.addConstraint(Sketcher.Constraint("Vertical", 8))
sketch5.addConstraint(Sketcher.Constraint("Horizontal", 9))
sketch5.addConstraint(Sketcher.Constraint("Vertical", 10))
sketch5.addConstraint(Sketcher.Constraint("Horizontal", 11))
sketch5.addConstraint(Sketcher.Constraint("Vertical", 12))
sketch5.addConstraint(Sketcher.Constraint("Horizontal", 13))
sketch5.addConstraint(Sketcher.Constraint("Vertical", 14))
sketch5.addConstraint(Sketcher.Constraint("Horizontal", 15))
sketch5.addConstraint(Sketcher.Constraint("Horizontal", 5, 2, 8, 2))
sketch5.addConstraint(Sketcher.Constraint("Horizontal", 7, 2, 10, 2))
sketch5.addConstraint(Sketcher.Constraint("Horizontal", 1, 2, 12, 2))
sketch5.addConstraint(Sketcher.Constraint("Horizontal", 3, 2, 14, 2))
sketch5.addConstraint(Sketcher.Constraint("Vertical", 3, 2, 4, 2))
sketch5.addConstraint(Sketcher.Constraint("Vertical", 10, 2, 13, 2))
sketch5.addConstraint(Sketcher.Constraint("Equal", 7, 9))
sketch5.addConstraint(Sketcher.Constraint("Equal", 3, 13))
sketch5.addConstraint(Sketcher.Constraint("Equal", 2, 4))
sketch5.addConstraint(Sketcher.Constraint("DistanceY", 0, 2, 0, 1, Q("10 mm")))
sketch5.addConstraint(Sketcher.Constraint("DistanceY", 4, 2, 0, 2, Q("31.4 mm")))
sketch5.addConstraint(Sketcher.Constraint("DistanceX", 4, 2, 9, 2, Q("63.8 mm")))
sketch5.addConstraint(Sketcher.Constraint("DistanceX", 5, 1, 5, 2, Q("2.544721 mm")))
sketch5.addConstraint(Sketcher.Constraint("DistanceX", 1, 1, 1, 2, Q("3.197214 mm")))
sketch5.addConstraint(Sketcher.Constraint("DistanceX", 0, 2, -1, 1, Q("50.713089 mm")))
sketch5.addConstraint(Sketcher.Constraint("DistanceY", -1, 1, 0, 2, Q("7.296627 mm")))
pocket1 = body.newObject("PartDesign::Pocket", "Pocket")
pocket1.Profile = sketch5
pocket1.Length = 90

sketch6 = body.newObject("Sketcher::SketchObject", "Sketch005")
sketch6.AttachmentSupport = (doc.getObject("XZ_Plane"), [""])
sketch6.MapMode = "FlatFace"
sketch6.AttachmentOffset = App.Placement(Vector(0, 0, 6), App.Rotation())
sketch6.addGeometry(Part.LineSegment(Vector(-45, 50, 0), Vector(-45, -70, 0)), False)
sketch6.addGeometry(Part.LineSegment(Vector(-45, -70, 0), Vector(46, -70, 0)), False)
sketch6.addGeometry(Part.LineSegment(Vector(46, -70, 0), Vector(46, 50, 0)), False)
sketch6.addGeometry(Part.LineSegment(Vector(46, 50, 0), Vector(-45, 50, 0)), False)
sketch6.addConstraint(Sketcher.Constraint("Coincident", 0, 2, 1, 1))
sketch6.addConstraint(Sketcher.Constraint("Coincident", 1, 2, 2, 1))
sketch6.addConstraint(Sketcher.Constraint("Coincident", 2, 2, 3, 1))
sketch6.addConstraint(Sketcher.Constraint("Coincident", 3, 2, 0, 1))
sketch6.addConstraint(Sketcher.Constraint("Vertical", 0))
sketch6.addConstraint(Sketcher.Constraint("Horizontal", 1))
sketch6.addConstraint(Sketcher.Constraint("Vertical", 2))
sketch6.addConstraint(Sketcher.Constraint("Horizontal", 3))
sketch6.addConstraint(Sketcher.Constraint("DistanceY", 0, 2, 0, 1, Q("120.19428 mm")))
sketch6.addConstraint(Sketcher.Constraint("DistanceX", 1, 1, 1, 2, Q("91.376616 mm")))
sketch6.addConstraint(Sketcher.Constraint("DistanceX", 0, 2, -1, 1, Q("45.313089 mm")))
sketch6.addConstraint(Sketcher.Constraint("DistanceY", 0, 2, -1, 1, Q("69.853104 mm")))
pocket2 = body.newObject("PartDesign::Pocket", "Pocket001")
pocket2.Profile = sketch6
pocket2.Length = 258

sketch7 = body.newObject("Sketcher::SketchObject", "Sketch006")
sketch7.AttachmentSupport = (doc.getObject("YZ_Plane"), [""])
sketch7.MapMode = "FlatFace"
sketch7.AttachmentOffset = App.Placement(Vector(0, 0, -48.213089), App.Rotation())
sketch7.addGeometry(Part.LineSegment(Vector(19, 1, 0), Vector(-11, 1, 0)), False)
sketch7.addGeometry(Part.LineSegment(Vector(-11, 1, 0), Vector(-11, -7, 0)), False)
sketch7.addGeometry(Part.LineSegment(Vector(-11, -7, 0), Vector(19, -7, 0)), False)
sketch7.addGeometry(Part.LineSegment(Vector(19, -7, 0), Vector(19, 1, 0)), False)
sketch7.addConstraint(Sketcher.Constraint("Coincident", 0, 2, 1, 1))
sketch7.addConstraint(Sketcher.Constraint("Coincident", 1, 2, 2, 1))
sketch7.addConstraint(Sketcher.Constraint("Coincident", 2, 2, 3, 1))
sketch7.addConstraint(Sketcher.Constraint("Coincident", 3, 2, 0, 1))
sketch7.addConstraint(Sketcher.Constraint("Horizontal", 0))
sketch7.addConstraint(Sketcher.Constraint("Vertical", 1))
sketch7.addConstraint(Sketcher.Constraint("Horizontal", 2))
sketch7.addConstraint(Sketcher.Constraint("Vertical", 3))
sketch7.addConstraint(Sketcher.Constraint("DistanceY", 1, 2, 1, 1, Q("8 mm")))
sketch7.addConstraint(Sketcher.Constraint("DistanceX", -1, 1, 2, 2, Q("19 mm")))
sketch7.addConstraint(Sketcher.Constraint("DistanceX", 0, 2, 0, 1, Q("30.385134 mm")))
sketch7.addConstraint(Sketcher.Constraint("DistanceY", -1, 1, 0, 2, Q("0.596627 mm")))
pocket3 = body.newObject("PartDesign::Pocket", "Pocket002")
pocket3.Profile = sketch7
pocket3.Length = 4

sketch8 = body.newObject("Sketcher::SketchObject", "Sketch007")
sketch8.AttachmentSupport = (doc.getObject("YZ_Plane"), [""])
sketch8.MapMode = "FlatFace"
sketch8.AttachmentOffset = App.Placement(Vector(0, 0, -48.213089), App.Rotation())
sketch8.addGeometry(Part.Circle(Vector(-3, 4, 0), Vector(0, 0, 1), 1.4), False)
sketch8.addGeometry(Part.Circle(Vector(-3, -10.8, 0), Vector(0, 0, 1), 1.4), False)
sketch8.addGeometry(Part.Circle(Vector(-3, 20.3, 0), Vector(0, 0, 1), 1.4), False)
sketch8.addGeometry(Part.Circle(Vector(-3, -27.1, 0), Vector(0, 0, 1), 1.4), False)
sketch8.addConstraint(Sketcher.Constraint("Equal", 0, 1))
sketch8.addConstraint(Sketcher.Constraint("Equal", 1, 2))
sketch8.addConstraint(Sketcher.Constraint("Equal", 2, 3))
sketch8.addConstraint(Sketcher.Constraint("Vertical", 0, 3, 1, 3))
sketch8.addConstraint(Sketcher.Constraint("Vertical", 1, 3, 2, 3))
sketch8.addConstraint(Sketcher.Constraint("Vertical", 2, 3, 3, 3))
sketch8.addConstraint(Sketcher.Constraint("Diameter", 0, Q("2.7 mm")))
sketch8.addConstraint(Sketcher.Constraint("DistanceX", 0, 3, -1, 1, Q("3 mm")))
sketch8.addConstraint(Sketcher.Constraint("DistanceY", 0, 3, 2, 3, Q("16.35 mm")))
sketch8.addConstraint(Sketcher.Constraint("DistanceY", 3, 3, 1, 3, Q("16.35 mm")))
sketch8.addConstraint(Sketcher.Constraint("DistanceY", 1, 3, 0, 3, Q("14.722739 mm")))
sketch8.addConstraint(Sketcher.Constraint("DistanceY", -1, 1, 0, 3, Q("3.969366 mm")))
pocket4 = body.newObject("PartDesign::Pocket", "Pocket003")
pocket4.Profile = sketch8
pocket4.Length = 11

sketch9 = body.newObject("Sketcher::SketchObject", "Sketch008")
sketch9.AttachmentSupport = (doc.getObject("YZ_Plane"), [""])
sketch9.MapMode = "FlatFace"
sketch9.AttachmentOffset = App.Placement(Vector(0, 0, -55.813089), App.Rotation())
sketch9.addGeometry(Part.LineSegment(Vector(99.5, -17.9, 0), Vector(96, -17.9, 0)), False)
sketch9.addGeometry(Part.LineSegment(Vector(96, -17.9, 0), Vector(96, 11.1, 0)), False)
sketch9.addGeometry(Part.LineSegment(Vector(96, 11.1, 0), Vector(99.5, 11.1, 0)), False)
sketch9.addGeometry(Part.LineSegment(Vector(99.5, 11.1, 0), Vector(99.5, -17.9, 0)), False)
sketch9.addConstraint(Sketcher.Constraint("Coincident", 0, 2, 1, 1))
sketch9.addConstraint(Sketcher.Constraint("Coincident", 1, 2, 2, 1))
sketch9.addConstraint(Sketcher.Constraint("Coincident", 2, 2, 3, 1))
sketch9.addConstraint(Sketcher.Constraint("Coincident", 3, 2, 0, 1))
sketch9.addConstraint(Sketcher.Constraint("Horizontal", 0))
sketch9.addConstraint(Sketcher.Constraint("Vertical", 1))
sketch9.addConstraint(Sketcher.Constraint("Horizontal", 2))
sketch9.addConstraint(Sketcher.Constraint("Vertical", 3))
sketch9.addConstraint(Sketcher.Constraint("DistanceY", 1, 1, 1, 2, Q("29 mm")))
sketch9.addConstraint(Sketcher.Constraint("DistanceX", 0, 2, 0, 1, Q("3.5 mm")))
sketch9.addConstraint(Sketcher.Constraint("DistanceX", -1, 1, 0, 2, Q("96 mm")))
sketch9.addConstraint(Sketcher.Constraint("DistanceY", 0, 2, -1, 1, Q("17.903373 mm")))
pocket5 = body.newObject("PartDesign::Pocket", "Pocket004")
pocket5.Profile = sketch9
pocket5.Length = 10
pocket5.Reversed = True

sketch10 = body.newObject("Sketcher::SketchObject", "Sketch009")
sketch10.AttachmentSupport = (doc.getObject("YZ_Plane"), [""])
sketch10.MapMode = "FlatFace"
sketch10.AttachmentOffset = App.Placement(Vector(0, 0, -55.813089), App.Rotation())
sketch10.addGeometry(Part.LineSegment(Vector(129, -58, 0), Vector(102, -58, 0)), False)
sketch10.addGeometry(Part.LineSegment(Vector(102, -58, 0), Vector(102, 58, 0)), False)
sketch10.addGeometry(Part.LineSegment(Vector(102, 58, 0), Vector(129, 58, 0)), False)
sketch10.addGeometry(Part.LineSegment(Vector(129, 58, 0), Vector(129, -58, 0)), False)
sketch10.addConstraint(Sketcher.Constraint("Coincident", 0, 2, 1, 1))
sketch10.addConstraint(Sketcher.Constraint("Coincident", 1, 2, 2, 1))
sketch10.addConstraint(Sketcher.Constraint("Coincident", 2, 2, 3, 1))
sketch10.addConstraint(Sketcher.Constraint("Coincident", 3, 2, 0, 1))
sketch10.addConstraint(Sketcher.Constraint("Horizontal", 0))
sketch10.addConstraint(Sketcher.Constraint("Vertical", 1))
sketch10.addConstraint(Sketcher.Constraint("Horizontal", 2))
sketch10.addConstraint(Sketcher.Constraint("Vertical", 3))
sketch10.addConstraint(Sketcher.Constraint("DistanceX", -1, 1, 0, 2, Q("102.5 mm")))
sketch10.addConstraint(Sketcher.Constraint("DistanceY", 1, 1, 1, 2, Q("115.146041 mm")))
sketch10.addConstraint(Sketcher.Constraint("DistanceX", 0, 2, 0, 1, Q("26.021704 mm")))
sketch10.addConstraint(Sketcher.Constraint("DistanceY", 0, 2, -1, 1, Q("57.559698 mm")))
pocket6 = body.newObject("PartDesign::Pocket", "Pocket005")
pocket6.Profile = sketch10
pocket6.Length = 103
pocket6.Reversed = True

sketch11 = body.newObject("Sketcher::SketchObject", "Sketch010")
sketch11.AttachmentSupport = (doc.getObject("YZ_Plane"), [""])
sketch11.MapMode = "FlatFace"
sketch11.AttachmentOffset = App.Placement(Vector(0, 0, -48.213089), App.Rotation())
sketch11.addGeometry(Part.LineSegment(Vector(84, 10, 0), Vector(74, 10, 0)), False)
sketch11.addGeometry(Part.LineSegment(Vector(74, 10, 0), Vector(74, -18, 0)), False)
sketch11.addGeometry(Part.LineSegment(Vector(74, -18, 0), Vector(84, -18, 0)), False)
sketch11.addGeometry(Part.LineSegment(Vector(84, -18, 0), Vector(84, 10, 0)), False)
sketch11.addConstraint(Sketcher.Constraint("Coincident", 0, 2, 1, 1))
sketch11.addConstraint(Sketcher.Constraint("Coincident", 1, 2, 2, 1))
sketch11.addConstraint(Sketcher.Constraint("Coincident", 2, 2, 3, 1))
sketch11.addConstraint(Sketcher.Constraint("Coincident", 3, 2, 0, 1))
sketch11.addConstraint(Sketcher.Constraint("Horizontal", 0))
sketch11.addConstraint(Sketcher.Constraint("Vertical", 1))
sketch11.addConstraint(Sketcher.Constraint("Horizontal", 2))
sketch11.addConstraint(Sketcher.Constraint("Vertical", 3))
sketch11.addConstraint(Sketcher.Constraint("DistanceX", 0, 2, 0, 1, Q("10 mm")))
sketch11.addConstraint(Sketcher.Constraint("DistanceX", -1, 1, 0, 2, Q("74 mm")))
sketch11.addConstraint(Sketcher.Constraint("DistanceY", 1, 2, 1, 1, Q("27.624811 mm")))
sketch11.addConstraint(Sketcher.Constraint("DistanceY", -1, 1, 0, 2, Q("9.595229 mm")))
pocket7 = body.newObject("PartDesign::Pocket", "Pocket006")
pocket7.Profile = sketch11
pocket7.Length = 2.5

sketch12 = body.newObject("Sketcher::SketchObject", "Sketch011")
sketch12.AttachmentSupport = (doc.getObject("YZ_Plane"), [""])
sketch12.MapMode = "FlatFace"
sketch12.AttachmentOffset = App.Placement(Vector(0, 0, -55.813089), App.Rotation())
sketch12.addGeometry(Part.Circle(Vector(98.5, -23.4, 0), Vector(0, 0, 1), 1.4), False)
sketch12.addGeometry(Part.Circle(Vector(98.5, 16.6, 0), Vector(0, 0, 1), 1.4), False)
sketch12.addConstraint(Sketcher.Constraint("Equal", 0, 1))
sketch12.addConstraint(Sketcher.Constraint("Vertical", 0, 3, 1, 3))
sketch12.addConstraint(Sketcher.Constraint("Diameter", 0, Q("2.7 mm")))
sketch12.addConstraint(Sketcher.Constraint("DistanceY", 0, 3, 1, 3, Q("40 mm")))
sketch12.addConstraint(Sketcher.Constraint("DistanceX", -1, 1, 0, 3, Q("98.5 mm")))
sketch12.addConstraint(Sketcher.Constraint("DistanceY", 0, 3, -1, 1, Q("23.403373 mm")))
pocket8 = body.newObject("PartDesign::Pocket", "Pocket007")
pocket8.Profile = sketch12
pocket8.Length = 5
pocket8.Reversed = True

doc.recompute()
